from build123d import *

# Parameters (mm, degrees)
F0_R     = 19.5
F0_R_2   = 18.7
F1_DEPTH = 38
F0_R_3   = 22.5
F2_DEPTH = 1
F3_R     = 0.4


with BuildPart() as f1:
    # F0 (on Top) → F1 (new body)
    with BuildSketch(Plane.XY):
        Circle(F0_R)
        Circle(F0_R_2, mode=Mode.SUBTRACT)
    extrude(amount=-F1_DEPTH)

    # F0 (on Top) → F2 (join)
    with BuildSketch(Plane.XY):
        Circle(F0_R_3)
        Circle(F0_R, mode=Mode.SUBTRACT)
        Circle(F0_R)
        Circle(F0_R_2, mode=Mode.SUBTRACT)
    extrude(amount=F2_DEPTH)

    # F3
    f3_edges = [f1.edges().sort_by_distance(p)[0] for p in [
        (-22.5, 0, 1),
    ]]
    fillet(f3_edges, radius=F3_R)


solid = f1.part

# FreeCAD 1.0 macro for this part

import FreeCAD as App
import Part
import Sketcher


def edges_at(feature, points):
    """Names of the edges that pass closest to the given points."""
    edges = feature.Shape.Edges
    near = lambda p: min(range(len(edges)), key=lambda i: edges[i].distToShape(Part.Vertex(*p))[0])
    return sorted({f"Edge{near(p) + 1}" for p in points})

doc = App.newDocument("Part")
params = doc.addObject("Spreadsheet::Sheet", "Params")
for row, (alias, value) in enumerate([
    ("sketch1_diameter", "39 mm"),
    ("sketch1_diameter2", "37.4 mm"),
    ("pad1_length", "38 mm"),
    ("sketch2_diameter", "45 mm"),
    ("sketch2_diameter2", "37.4 mm"),
    ("pad2_length", "1 mm"),
    ("fillet_radius", "0.4 mm"),
], start=1):
    params.set(f"A{row}", alias)
    params.set(f"B{row}", "=" + value)
    params.setAlias(f"B{row}", alias)

body = doc.addObject("PartDesign::Body", "Body")

# Sketch on XY plane
sketch1 = body.newObject("Sketcher::SketchObject", "Sketch")
sketch1.AttachmentSupport = (doc.getObject("XY_Plane"), [""])
sketch1.MapMode = "FlatFace"
sketch1.addGeometry([
    Part.Circle(App.Vector(0, 0, 0), App.Vector(0, 0, 1), 20),
    Part.Circle(App.Vector(0, 0, 0), App.Vector(0, 0, 1), 19),
], False)
sketch1.addConstraint([
    Sketcher.Constraint("Coincident", 0, 3, -1, 1),
    Sketcher.Constraint("Coincident", 1, 3, -1, 1),
    Sketcher.Constraint("Diameter", 0, 39.0),
    Sketcher.Constraint("Diameter", 1, 37.4),
])
sketch1.setExpression("Constraints[2]", "Params.sketch1_diameter")
sketch1.setExpression("Constraints[3]", "Params.sketch1_diameter2")
pad1 = body.newObject("PartDesign::Pad", "Pad")
pad1.Profile = sketch1
pad1.setExpression("Length", "Params.pad1_length")
pad1.Reversed = True

# Sketch on XY plane
sketch2 = body.newObject("Sketcher::SketchObject", "Sketch001")
sketch2.AttachmentSupport = (doc.getObject("XY_Plane"), [""])
sketch2.MapMode = "FlatFace"
sketch2.addGeometry([
    Part.Circle(App.Vector(0, 0, 0), App.Vector(0, 0, 1), 22),
    Part.Circle(App.Vector(0, 0, 0), App.Vector(0, 0, 1), 19),
], False)
sketch2.addConstraint([
    Sketcher.Constraint("Coincident", 0, 3, -1, 1),
    Sketcher.Constraint("Coincident", 1, 3, -1, 1),
    Sketcher.Constraint("Diameter", 0, 45.0),
    Sketcher.Constraint("Diameter", 1, 37.4),
])
sketch2.setExpression("Constraints[2]", "Params.sketch2_diameter")
sketch2.setExpression("Constraints[3]", "Params.sketch2_diameter2")
pad2 = body.newObject("PartDesign::Pad", "Pad001")
pad2.Profile = sketch2
pad2.setExpression("Length", "Params.pad2_length")
doc.recompute()

fillet = body.newObject("PartDesign::Fillet", "Fillet")
fillet.Base = (pad2, edges_at(pad2, [(-22.5, 0, 1)]))
fillet.setExpression("Radius", "Params.fillet_radius")

doc.recompute()
